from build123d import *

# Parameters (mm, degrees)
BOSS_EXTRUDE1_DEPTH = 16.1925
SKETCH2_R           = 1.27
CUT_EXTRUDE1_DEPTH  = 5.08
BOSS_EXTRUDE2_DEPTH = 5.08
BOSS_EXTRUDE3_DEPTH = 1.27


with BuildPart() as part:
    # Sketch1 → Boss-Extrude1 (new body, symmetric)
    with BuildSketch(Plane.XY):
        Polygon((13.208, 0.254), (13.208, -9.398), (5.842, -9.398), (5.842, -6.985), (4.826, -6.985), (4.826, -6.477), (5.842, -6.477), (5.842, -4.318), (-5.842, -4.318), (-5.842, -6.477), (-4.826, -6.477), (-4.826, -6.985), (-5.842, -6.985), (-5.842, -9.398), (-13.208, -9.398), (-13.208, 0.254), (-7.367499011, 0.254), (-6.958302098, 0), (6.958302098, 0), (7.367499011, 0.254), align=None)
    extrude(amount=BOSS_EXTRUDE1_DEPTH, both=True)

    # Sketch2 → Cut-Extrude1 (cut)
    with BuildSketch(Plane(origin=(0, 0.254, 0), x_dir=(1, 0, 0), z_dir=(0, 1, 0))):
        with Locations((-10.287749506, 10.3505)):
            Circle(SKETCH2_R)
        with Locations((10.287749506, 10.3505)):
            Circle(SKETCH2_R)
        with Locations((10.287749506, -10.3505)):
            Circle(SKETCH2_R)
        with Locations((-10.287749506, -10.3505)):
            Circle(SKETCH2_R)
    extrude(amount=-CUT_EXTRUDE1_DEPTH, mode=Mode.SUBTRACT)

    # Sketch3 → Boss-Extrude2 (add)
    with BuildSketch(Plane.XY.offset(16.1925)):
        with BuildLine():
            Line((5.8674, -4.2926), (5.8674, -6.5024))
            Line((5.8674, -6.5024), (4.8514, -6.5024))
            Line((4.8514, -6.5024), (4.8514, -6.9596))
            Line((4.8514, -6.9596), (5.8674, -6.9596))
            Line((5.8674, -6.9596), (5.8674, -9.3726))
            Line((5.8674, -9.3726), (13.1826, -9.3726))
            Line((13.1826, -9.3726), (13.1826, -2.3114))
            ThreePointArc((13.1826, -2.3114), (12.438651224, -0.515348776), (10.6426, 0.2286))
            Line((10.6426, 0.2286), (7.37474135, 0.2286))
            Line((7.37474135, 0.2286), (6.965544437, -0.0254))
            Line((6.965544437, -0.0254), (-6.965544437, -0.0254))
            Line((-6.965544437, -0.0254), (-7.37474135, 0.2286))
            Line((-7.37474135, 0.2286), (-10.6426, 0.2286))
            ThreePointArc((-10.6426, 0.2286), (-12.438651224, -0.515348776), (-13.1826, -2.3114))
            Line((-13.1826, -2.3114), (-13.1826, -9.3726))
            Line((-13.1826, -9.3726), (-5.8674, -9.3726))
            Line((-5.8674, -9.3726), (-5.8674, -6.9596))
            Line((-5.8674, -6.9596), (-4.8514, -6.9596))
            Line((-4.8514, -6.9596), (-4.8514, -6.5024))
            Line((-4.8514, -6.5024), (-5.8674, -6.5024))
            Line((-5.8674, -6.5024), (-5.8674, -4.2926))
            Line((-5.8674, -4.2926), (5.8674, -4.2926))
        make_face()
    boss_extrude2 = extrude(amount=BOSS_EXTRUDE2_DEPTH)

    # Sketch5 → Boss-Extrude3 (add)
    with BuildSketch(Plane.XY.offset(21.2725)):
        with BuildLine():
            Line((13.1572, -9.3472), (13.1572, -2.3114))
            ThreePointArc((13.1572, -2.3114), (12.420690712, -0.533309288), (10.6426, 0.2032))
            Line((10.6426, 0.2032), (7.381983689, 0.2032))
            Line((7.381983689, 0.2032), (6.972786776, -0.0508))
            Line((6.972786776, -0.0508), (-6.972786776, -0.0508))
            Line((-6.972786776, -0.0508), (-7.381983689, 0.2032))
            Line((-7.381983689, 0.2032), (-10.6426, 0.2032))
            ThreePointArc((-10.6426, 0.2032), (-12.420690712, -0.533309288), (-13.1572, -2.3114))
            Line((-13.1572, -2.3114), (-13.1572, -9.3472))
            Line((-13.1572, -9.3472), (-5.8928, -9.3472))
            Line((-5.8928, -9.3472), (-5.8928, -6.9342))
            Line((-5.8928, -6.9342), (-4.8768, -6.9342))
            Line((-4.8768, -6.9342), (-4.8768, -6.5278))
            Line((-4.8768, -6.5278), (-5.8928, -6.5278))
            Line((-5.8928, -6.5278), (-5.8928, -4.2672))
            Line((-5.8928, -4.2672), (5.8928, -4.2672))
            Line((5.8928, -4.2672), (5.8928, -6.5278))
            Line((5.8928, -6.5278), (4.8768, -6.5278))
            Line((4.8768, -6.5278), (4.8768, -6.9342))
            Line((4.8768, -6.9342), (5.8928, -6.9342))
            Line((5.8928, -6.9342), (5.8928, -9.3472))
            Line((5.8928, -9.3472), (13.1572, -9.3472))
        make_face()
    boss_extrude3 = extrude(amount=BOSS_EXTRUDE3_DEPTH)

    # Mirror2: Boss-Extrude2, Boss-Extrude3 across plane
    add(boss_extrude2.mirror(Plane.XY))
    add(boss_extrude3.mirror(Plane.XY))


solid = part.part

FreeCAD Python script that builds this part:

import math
import FreeCAD as App
import Part
import Sketcher

V = App.Vector
Q = App.Units.Quantity

doc = App.newDocument("Part")
params = doc.addObject("Spreadsheet::Sheet", "Params")
for row, (alias, value) in enumerate([
    ("sketch1_width", "0.29 in"),
    ("sketch1_width2", "0.04 in"),
    ("sketch1_width3", "0.46 in"),
    ("sketch1_height", "0.38 in"),
    ("sketch1_height2", "0.02 in"),
    ("pad1_length", "1.275 in"),
    ("sketch2_diameter", "0.1 in"),
    ("pocket1_length", "0.2 in"),
    ("sketch3_radius", "0.1 in"),
    ("sketch3_width", "0.04 in"),
    ("sketch3_width2", "0.288 in"),
    ("sketch3_width3", "0.462 in"),
    ("sketch3_height", "0.087 in"),
    ("pad2_length", "0.2 in"),
    ("sketch4_radius", "0.099 in"),
    ("sketch4_width", "0.04 in"),
    ("sketch4_width2", "0.286 in"),
    ("sketch4_width3", "0.464 in"),
    ("sketch4_height", "0.277 in"),
    ("pad3_length", "0.05 in"),
], start=1):
    params.set(f"A{row}", alias)
    params.set(f"B{row}", "=" + value)
    params.setAlias(f"B{row}", alias)

body = doc.addObject("PartDesign::Body", "Body")

# Sketch on XY plane
sketch1 = doc.addObject("Sketcher::SketchObject", "Sketch")
body.addObject(sketch1)
sketch1.AttachmentSupport = (doc.XY_Plane, [""])
sketch1.MapMode = "FlatFace"
sketch1.addGeometry([
    Part.LineSegment(V(13.208, -9.398, 0), V(13.208, 0.254, 0)),  # 0
    Part.LineSegment(V(13.208, 0.254, 0), V(7.367499, 0.254, 0)),  # 1
    Part.LineSegment(V(7.367499, 0.254, 0), V(6.958302, 0, 0)),  # 2
    Part.LineSegment(V(6.958302, 0, 0), V(-6.958302, 0, 0)),  # 3
    Part.LineSegment(V(-6.958302, 0, 0), V(-7.367499, 0.254, 0)),  # 4
    Part.LineSegment(V(-7.367499, 0.254, 0), V(-13.208, 0.254, 0)),  # 5
    Part.LineSegment(V(-13.208, 0.254, 0), V(-13.208, -9.398, 0)),  # 6
    Part.LineSegment(V(-13.208, -9.398, 0), V(-5.842, -9.398, 0)),  # 7
    Part.LineSegment(V(-5.842, -9.398, 0), V(-5.842, -6.985, 0)),  # 8
    Part.LineSegment(V(-5.842, -6.985, 0), V(-4.826, -6.985, 0)),  # 9
    Part.LineSegment(V(-4.826, -6.985, 0), V(-4.826, -6.477, 0)),  # 10
    Part.LineSegment(V(-4.826, -6.477, 0), V(-5.842, -6.477, 0)),  # 11
    Part.LineSegment(V(-5.842, -6.477, 0), V(-5.842, -4.318, 0)),  # 12
    Part.LineSegment(V(-5.842, -4.318, 0), V(5.842, -4.318, 0)),  # 13
    Part.LineSegment(V(5.842, -4.318, 0), V(5.842, -6.477, 0)),  # 14
    Part.LineSegment(V(5.842, -6.477, 0), V(4.826, -6.477, 0)),  # 15
    Part.LineSegment(V(4.826, -6.477, 0), V(4.826, -6.985, 0)),  # 16
    Part.LineSegment(V(4.826, -6.985, 0), V(5.842, -6.985, 0)),  # 17
    Part.LineSegment(V(5.842, -6.985, 0), V(5.842, -9.398, 0)),  # 18
    Part.LineSegment(V(5.842, -9.398, 0), V(13.208, -9.398, 0)),  # 19
], False)
sketch1.addConstraint([
    Sketcher.Constraint("Coincident", 0, 2, 1, 1),
    Sketcher.Constraint("Coincident", 1, 2, 2, 1),
    Sketcher.Constraint("Coincident", 2, 2, 3, 1),
    Sketcher.Constraint("Coincident", 3, 2, 4, 1),
    Sketcher.Constraint("Coincident", 4, 2, 5, 1),
    Sketcher.Constraint("Coincident", 5, 2, 6, 1),
    Sketcher.Constraint("Coincident", 6, 2, 7, 1),
    Sketcher.Constraint("Coincident", 7, 2, 8, 1),
    Sketcher.Constraint("Coincident", 8, 2, 9, 1),
    Sketcher.Constraint("Coincident", 9, 2, 10, 1),
    Sketcher.Constraint("Coincident", 10, 2, 11, 1),
    Sketcher.Constraint("Coincident", 11, 2, 12, 1),
    Sketcher.Constraint("Coincident", 12, 2, 13, 1),
    Sketcher.Constraint("Coincident", 13, 2, 14, 1),
    Sketcher.Constraint("Coincident", 14, 2, 15, 1),
    Sketcher.Constraint("Coincident", 15, 2, 16, 1),
    Sketcher.Constraint("Coincident", 16, 2, 17, 1),
    Sketcher.Constraint("Coincident", 17, 2, 18, 1),
    Sketcher.Constraint("Coincident", 18, 2, 19, 1),
    Sketcher.Constraint("Coincident", 19, 2, 0, 1),
    Sketcher.Constraint("Vertical", 0),
    Sketcher.Constraint("Horizontal", 1),
    Sketcher.Constraint("Horizontal", 3),
    Sketcher.Constraint("Horizontal", 5),
    Sketcher.Constraint("Vertical", 6),
    Sketcher.Constraint("Horizontal", 7),
    Sketcher.Constraint("Vertical", 8),
    Sketcher.Constraint("Horizontal", 9),
    Sketcher.Constraint("Vertical", 10),
    Sketcher.Constraint("Horizontal", 11),
    Sketcher.Constraint("Vertical", 12),
    Sketcher.Constraint("Horizontal", 13),
    Sketcher.Constraint("Vertical", 14),
    Sketcher.Constraint("Horizontal", 15),
    Sketcher.Constraint("Vertical", 16),
    Sketcher.Constraint("Horizontal", 17),
    Sketcher.Constraint("Vertical", 18),
    Sketcher.Constraint("Horizontal", 19),
    Sketcher.Constraint("Symmetric", 2, 2, 3, 2, -1, 1),
    Sketcher.Constraint("Symmetric", 1, 2, 4, 2, -2),
    Sketcher.Constraint("Symmetric", 11, 2, 14, 2, -2),
    Sketcher.Constraint("Symmetric", 9, 2, 16, 2, -2),
    Sketcher.Constraint("Symmetric", 7, 2, 18, 2, -2),
    Sketcher.Constraint("Vertical", 8, 2, 11, 2),
    Sketcher.Constraint("Equal", 1, 5),
    Sketcher.Constraint("DistanceX", 7, 1, 7, 2, Q("0.29 in")),
    Sketcher.Constraint("DistanceX", 9, 1, 9, 2, Q("0.04 in")),
    Sketcher.Constraint("DistanceX", 13, 1, 13, 2, Q("0.46 in")),
    Sketcher.Constraint("DistanceY", 0, 1, 0, 2, Q("0.38 in")),
    Sketcher.Constraint("DistanceY", 10, 1, 10, 2, Q("0.02 in")),
    Sketcher.Constraint("DistanceY", 18, 2, 13, 2, Q("0.2 in")),
    Sketcher.Constraint("DistanceY", 8, 1, 8, 2, Q("0.095 in")),
    Sketcher.Constraint("DistanceY", -1, 1, 0, 2, Q("0.01 in")),
    Sketcher.Constraint("DistanceX", 1, 2, 1, 1, Q("5.840501 mm")),
    Sketcher.Constraint("DistanceX", 3, 2, 1, 2, Q("14.325801 mm")),
])
sketch1.setExpression("Constraints[45]", "Params.sketch1_width")
sketch1.setExpression("Constraints[46]", "Params.sketch1_width2")
sketch1.setExpression("Constraints[47]", "Params.sketch1_width3")
sketch1.setExpression("Constraints[48]", "Params.sketch1_height")
sketch1.setExpression("Constraints[49]", "Params.sketch1_height2")
pad1 = doc.addObject("PartDesign::Pad", "Pad")
body.addObject(pad1)
pad1.Profile = sketch1
pad1.setExpression("Length", "Params.pad1_length")
pad1.Midplane = True

# Sketch on XZ plane
sketch2 = doc.addObject("Sketcher::SketchObject", "Sketch001")
body.addObject(sketch2)
sketch2.AttachmentSupport = (doc.XZ_Plane, [""])
sketch2.MapMode = "FlatFace"
sketch2.AttachmentOffset = App.Placement(V(0, 0, -0.01 * 25.4), App.Rotation())
sketch2.addGeometry([
    Part.Circle(V(-10.28775, -10.3505, 0), V(0, 0, 1), 1.27),
    Part.Circle(V(10.28775, -10.3505, 0), V(0, 0, 1), 1.27),
    Part.Circle(V(10.28775, 10.3505, 0), V(0, 0, 1), 1.27),
    Part.Circle(V(-10.28775, 10.3505, 0), V(0, 0, 1), 1.27),
], False)
sketch2.addConstraint([
    Sketcher.Constraint("Equal", 0, 1),
    Sketcher.Constraint("Equal", 1, 2),
    Sketcher.Constraint("Equal", 2, 3),
    Sketcher.Constraint("Symmetric", 0, 3, 2, 3, -1, 1),
    Sketcher.Constraint("Symmetric", 1, 3, 3, 3, -1, 1),
    Sketcher.Constraint("Symmetric", 0, 3, 1, 3, -2),
    Sketcher.Constraint("Diameter", 0, Q("0.1 in")),
    Sketcher.Constraint("DistanceY", 1, 3, 2, 3, Q("0.815 in")),
    Sketcher.Constraint("DistanceX", 0, 3, 1, 3, Q("20.575499 mm")),
])
sketch2.setExpression("Constraints[6]", "Params.sketch2_diameter")
pocket1 = doc.addObject("PartDesign::Pocket", "Pocket")
body.addObject(pocket1)
pocket1.Profile = sketch2
pocket1.setExpression("Length", "Params.pocket1_length")
pocket1.Reversed = True

# Sketch on XY plane
sketch3 = doc.addObject("Sketcher::SketchObject", "Sketch002")
body.addObject(sketch3)
sketch3.AttachmentSupport = (doc.XY_Plane, [""])
sketch3.MapMode = "FlatFace"
sketch3.AttachmentOffset = App.Placement(V(0, 0, 0.6375 * 25.4), App.Rotation())
sketch3.addGeometry([
    Part.LineSegment(V(5.8674, -4.2926, 0), V(5.8674, -6.5024, 0)),  # 0
    Part.LineSegment(V(5.8674, -6.5024, 0), V(4.8514, -6.5024, 0)),  # 1
    Part.LineSegment(V(4.8514, -6.5024, 0), V(4.8514, -6.9596, 0)),  # 2
    Part.LineSegment(V(4.8514, -6.9596, 0), V(5.8674, -6.9596, 0)),  # 3
    Part.LineSegment(V(5.8674, -6.9596, 0), V(5.8674, -9.3726, 0)),  # 4
    Part.LineSegment(V(5.8674, -9.3726, 0), V(13.1826, -9.3726, 0)),  # 5
    Part.LineSegment(V(13.1826, -9.3726, 0), V(13.1826, -2.3114, 0)),  # 6
    Part.ArcOfCircle(Part.Circle(V(10.6426, -2.3114, 0), V(0, 0, 1), 2.54), math.radians(0), math.radians(90)),  # 7
    Part.LineSegment(V(10.6426, 0.2286, 0), V(7.374741, 0.2286, 0)),  # 8
    Part.LineSegment(V(7.374741, 0.2286, 0), V(6.965544, -0.0254, 0)),  # 9
    Part.LineSegment(V(6.965544, -0.0254, 0), V(-6.965544, -0.0254, 0)),  # 10
    Part.LineSegment(V(-6.965544, -0.0254, 0), V(-7.374741, 0.2286, 0)),  # 11
    Part.LineSegment(V(-7.374741, 0.2286, 0), V(-10.6426, 0.2286, 0)),  # 12
    Part.ArcOfCircle(Part.Circle(V(-10.6426, -2.3114, 0), V(0, 0, 1), 2.54), math.radians(90), math.radians(180)),  # 13
    Part.LineSegment(V(-13.1826, -2.3114, 0), V(-13.1826, -9.3726, 0)),  # 14
    Part.LineSegment(V(-13.1826, -9.3726, 0), V(-5.8674, -9.3726, 0)),  # 15
    Part.LineSegment(V(-5.8674, -9.3726, 0), V(-5.8674, -6.9596, 0)),  # 16
    Part.LineSegment(V(-5.8674, -6.9596, 0), V(-4.8514, -6.9596, 0)),  # 17
    Part.LineSegment(V(-4.8514, -6.9596, 0), V(-4.8514, -6.5024, 0)),  # 18
    Part.LineSegment(V(-4.8514, -6.5024, 0), V(-5.8674, -6.5024, 0)),  # 19
    Part.LineSegment(V(-5.8674, -6.5024, 0), V(-5.8674, -4.2926, 0)),  # 20
    Part.LineSegment(V(-5.8674, -4.2926, 0), V(5.8674, -4.2926, 0)),  # 21
], False)
sketch3.addConstraint([
    Sketcher.Constraint("Coincident", 0, 2, 1, 1),
    Sketcher.Constraint("Coincident", 1, 2, 2, 1),
    Sketcher.Constraint("Coincident", 2, 2, 3, 1),
    Sketcher.Constraint("Coincident", 3, 2, 4, 1),
    Sketcher.Constraint("Coincident", 4, 2, 5, 1),
    Sketcher.Constraint("Coincident", 5, 2, 6, 1),
    Sketcher.Constraint("Tangent", 6, 2, 7, 1),
    Sketcher.Constraint("Tangent", 7, 2, 8, 1),
    Sketcher.Constraint("Coincident", 8, 2, 9, 1),
    Sketcher.Constraint("Coincident", 9, 2, 10, 1),
    Sketcher.Constraint("Coincident", 10, 2, 11, 1),
    Sketcher.Constraint("Coincident", 11, 2, 12, 1),
    Sketcher.Constraint("Tangent", 12, 2, 13, 1),
    Sketcher.Constraint("Tangent", 13, 2, 14, 1),
    Sketcher.Constraint("Coincident", 14, 2, 15, 1),
    Sketcher.Constraint("Coincident", 15, 2, 16, 1),
    Sketcher.Constraint("Coincident", 16, 2, 17, 1),
    Sketcher.Constraint("Coincident", 17, 2, 18, 1),
    Sketcher.Constraint("Coincident", 18, 2, 19, 1),
    Sketcher.Constraint("Coincident", 19, 2, 20, 1),
    Sketcher.Constraint("Coincident", 20, 2, 21, 1),
    Sketcher.Constraint("Coincident", 21, 2, 0, 1),
    Sketcher.Constraint("Vertical", 0),
    Sketcher.Constraint("Horizontal", 1),
    Sketcher.Constraint("Vertical", 2),
    Sketcher.Constraint("Horizontal", 3),
    Sketcher.Constraint("Vertical", 4),
    Sketcher.Constraint("Horizontal", 5),
    Sketcher.Constraint("Vertical", 6),
    Sketcher.Constraint("Horizontal", 8),
    Sketcher.Constraint("Horizontal", 10),
    Sketcher.Constraint("Horizontal", 12),
    Sketcher.Constraint("Vertical", 14),
    Sketcher.Constraint("Horizontal", 15),
    Sketcher.Constraint("Vertical", 16),
    Sketcher.Constraint("Horizontal", 17),
    Sketcher.Constraint("Vertical", 18),
    Sketcher.Constraint("Horizontal", 19),
    Sketcher.Constraint("Vertical", 20),
    Sketcher.Constraint("Horizontal", 21),
    Sketcher.Constraint("Equal", 7, 13),
    Sketcher.Constraint("Symmetric", 7, 3, 13, 3, -2),
    Sketcher.Constraint("Symmetric", 4, 2, 15, 2, -2),
    Sketcher.Constraint("Symmetric", 2, 2, 17, 2, -2),
    Sketcher.Constraint("Symmetric", 0, 2, 19, 2, -2),
    Sketcher.Constraint("Vertical", 0, 2, 3, 2),
    Sketcher.Constraint("Equal", 8, 12),
    Sketcher.Constraint("Equal", 9, 11),
    Sketcher.Constraint("Radius", 7, Q("0.1 in")),
    Sketcher.Constraint("DistanceX", 1, 2, 1, 1, Q("0.04 in")),
    Sketcher.Constraint("DistanceX", 5, 1, 5, 2, Q("0.288 in")),
    Sketcher.Constraint("DistanceX", 21, 1, 21, 2, Q("0.462 in")),
    Sketcher.Constraint("DistanceY", 0, 2, 0, 1, Q("0.087 in")),
    Sketcher.Constraint("DistanceY", 2, 2, 2, 1, Q("0.018 in")),
    Sketcher.Constraint("DistanceY", 4, 2, 4, 1, Q("0.095 in")),
    Sketcher.Constraint("DistanceY", 6, 1, 6, 2, Q("0.278 in")),
    Sketcher.Constraint("DistanceY", 9, 2, 8, 2, Q("0.01 in")),
    Sketcher.Constraint("DistanceY", 7, 3, -1, 1, Q("0.091 in")),
    Sketcher.Constraint("DistanceX", 8, 2, 8, 1, Q("3.267859 mm")),
    Sketcher.Constraint("DistanceX", 10, 2, 10, 1, Q("13.931089 mm")),
])
sketch3.setExpression("Constraints[48]", "Params.sketch3_radius")
sketch3.setExpression("Constraints[49]", "Params.sketch3_width")
sketch3.setExpression("Constraints[50]", "Params.sketch3_width2")
sketch3.setExpression("Constraints[51]", "Params.sketch3_width3")
sketch3.setExpression("Constraints[52]", "Params.sketch3_height")
pad2 = doc.addObject("PartDesign::Pad", "Pad001")
body.addObject(pad2)
pad2.Profile = sketch3
pad2.setExpression("Length", "Params.pad2_length")

# Sketch on XY plane
sketch4 = doc.addObject("Sketcher::SketchObject", "Sketch003")
body.addObject(sketch4)
sketch4.AttachmentSupport = (doc.XY_Plane, [""])
sketch4.MapMode = "FlatFace"
sketch4.AttachmentOffset = App.Placement(V(0, 0, 0.8375 * 25.4), App.Rotation())
sketch4.addGeometry([
    Part.LineSegment(V(13.1572, -9.3472, 0), V(13.1572, -2.3114, 0)),  # 0
    Part.ArcOfCircle(Part.Circle(V(10.6426, -2.3114, 0), V(0, 0, 1), 2.5146), math.radians(0), math.radians(90)),  # 1
    Part.LineSegment(V(10.6426, 0.2032, 0), V(7.381984, 0.2032, 0)),  # 2
    Part.LineSegment(V(7.381984, 0.2032, 0), V(6.972787, -0.0508, 0)),  # 3
    Part.LineSegment(V(6.972787, -0.0508, 0), V(-6.972787, -0.0508, 0)),  # 4
    Part.LineSegment(V(-6.972787, -0.0508, 0), V(-7.381984, 0.2032, 0)),  # 5
    Part.LineSegment(V(-7.381984, 0.2032, 0), V(-10.6426, 0.2032, 0)),  # 6
    Part.ArcOfCircle(Part.Circle(V(-10.6426, -2.3114, 0), V(0, 0, 1), 2.5146), math.radians(90), math.radians(180)),  # 7
    Part.LineSegment(V(-13.1572, -2.3114, 0), V(-13.1572, -9.3472, 0)),  # 8
    Part.LineSegment(V(-13.1572, -9.3472, 0), V(-5.8928, -9.3472, 0)),  # 9
    Part.LineSegment(V(-5.8928, -9.3472, 0), V(-5.8928, -6.9342, 0)),  # 10
    Part.LineSegment(V(-5.8928, -6.9342, 0), V(-4.8768, -6.9342, 0)),  # 11
    Part.LineSegment(V(-4.8768, -6.9342, 0), V(-4.8768, -6.5278, 0)),  # 12
    Part.LineSegment(V(-4.8768, -6.5278, 0), V(-5.8928, -6.5278, 0)),  # 13
    Part.LineSegment(V(-5.8928, -6.5278, 0), V(-5.8928, -4.2672, 0)),  # 14
    Part.LineSegment(V(-5.8928, -4.2672, 0), V(5.8928, -4.2672, 0)),  # 15
    Part.LineSegment(V(5.8928, -4.2672, 0), V(5.8928, -6.5278, 0)),  # 16
    Part.LineSegment(V(5.8928, -6.5278, 0), V(4.8768, -6.5278, 0)),  # 17
    Part.LineSegment(V(4.8768, -6.5278, 0), V(4.8768, -6.9342, 0)),  # 18
    Part.LineSegment(V(4.8768, -6.9342, 0), V(5.8928, -6.9342, 0)),  # 19
    Part.LineSegment(V(5.8928, -6.9342, 0), V(5.8928, -9.3472, 0)),  # 20
    Part.LineSegment(V(5.8928, -9.3472, 0), V(13.1572, -9.3472, 0)),  # 21
], False)
sketch4.addConstraint([
    Sketcher.Constraint("Tangent", 0, 2, 1, 1),
    Sketcher.Constraint("Tangent", 1, 2, 2, 1),
    Sketcher.Constraint("Coincident", 2, 2, 3, 1),
    Sketcher.Constraint("Coincident", 3, 2, 4, 1),
    Sketcher.Constraint("Coincident", 4, 2, 5, 1),
    Sketcher.Constraint("Coincident", 5, 2, 6, 1),
    Sketcher.Constraint("Tangent", 6, 2, 7, 1),
    Sketcher.Constraint("Tangent", 7, 2, 8, 1),
    Sketcher.Constraint("Coincident", 8, 2, 9, 1),
    Sketcher.Constraint("Coincident", 9, 2, 10, 1),
    Sketcher.Constraint("Coincident", 10, 2, 11, 1),
    Sketcher.Constraint("Coincident", 11, 2, 12, 1),
    Sketcher.Constraint("Coincident", 12, 2, 13, 1),
    Sketcher.Constraint("Coincident", 13, 2, 14, 1),
    Sketcher.Constraint("Coincident", 14, 2, 15, 1),
    Sketcher.Constraint("Coincident", 15, 2, 16, 1),
    Sketcher.Constraint("Coincident", 16, 2, 17, 1),
    Sketcher.Constraint("Coincident", 17, 2, 18, 1),
    Sketcher.Constraint("Coincident", 18, 2, 19, 1),
    Sketcher.Constraint("Coincident", 19, 2, 20, 1),
    Sketcher.Constraint("Coincident", 20, 2, 21, 1),
    Sketcher.Constraint("Coincident", 21, 2, 0, 1),
    Sketcher.Constraint("Vertical", 0),
    Sketcher.Constraint("Horizontal", 2),
    Sketcher.Constraint("Horizontal", 4),
    Sketcher.Constraint("Horizontal", 6),
    Sketcher.Constraint("Vertical", 8),
    Sketcher.Constraint("Horizontal", 9),
    Sketcher.Constraint("Vertical", 10),
    Sketcher.Constraint("Horizontal", 11),
    Sketcher.Constraint("Vertical", 12),
    Sketcher.Constraint("Horizontal", 13),
    Sketcher.Constraint("Vertical", 14),
    Sketcher.Constraint("Horizontal", 15),
    Sketcher.Constraint("Vertical", 16),
    Sketcher.Constraint("Horizontal", 17),
    Sketcher.Constraint("Vertical", 18),
    Sketcher.Constraint("Horizontal", 19),
    Sketcher.Constraint("Vertical", 20),
    Sketcher.Constraint("Horizontal", 21),
    Sketcher.Constraint("Equal", 1, 7),
    Sketcher.Constraint("Symmetric", 1, 3, 7, 3, -2),
    Sketcher.Constraint("Symmetric", 13, 2, 16, 2, -2),
    Sketcher.Constraint("Symmetric", 11, 2, 18, 2, -2),
    Sketcher.Constraint("Symmetric", 9, 2, 20, 2, -2),
    Sketcher.Constraint("Vertical", 10, 2, 13, 2),
    Sketcher.Constraint("Equal", 2, 6),
    Sketcher.Constraint("Equal", 3, 5),
    Sketcher.Constraint("Radius", 1, Q("0.099 in")),
    Sketcher.Constraint("DistanceX", 11, 1, 11, 2, Q("0.04 in")),
    Sketcher.Constraint("DistanceY", 20, 2, 15, 2, Q("0.2 in")),
    Sketcher.Constraint("DistanceX", 9, 1, 9, 2, Q("0.286 in")),
    Sketcher.Constraint("DistanceX", 15, 1, 15, 2, Q("0.464 in")),
    Sketcher.Constraint("DistanceY", 0, 1, 0, 2, Q("0.277 in")),
    Sketcher.Constraint("DistanceY", 10, 1, 10, 2, Q("0.095 in")),
    Sketcher.Constraint("DistanceY", 12, 1, 12, 2, Q("0.016 in")),
    Sketcher.Constraint("DistanceY", 3, 2, 2, 2, Q("0.01 in")),
    Sketcher.Constraint("DistanceY", 1, 3, -1, 1, Q("0.091 in")),
    Sketcher.Constraint("Distance", 3, Q("0.48162 mm")),
    Sketcher.Constraint("DistanceX", 2, 2, 2, 1, Q("3.260616 mm")),
])
sketch4.setExpression("Constraints[48]", "Params.sketch4_radius")
sketch4.setExpression("Constraints[49]", "Params.sketch4_width")
sketch4.setExpression("Constraints[51]", "Params.sketch4_width2")
sketch4.setExpression("Constraints[52]", "Params.sketch4_width3")
sketch4.setExpression("Constraints[53]", "Params.sketch4_height")
pad3 = doc.addObject("PartDesign::Pad", "Pad002")
body.addObject(pad3)
pad3.Profile = sketch4
pad3.setExpression("Length", "Params.pad3_length")
doc.recompute()

mirrored = doc.addObject("PartDesign::Mirrored", "Mirrored")
body.addObject(mirrored)
mirrored.Originals = [pad2, pad3]
mirrored.MirrorPlane = (doc.XY_Plane, [""])
body.Tip = mirrored

doc.recompute()
